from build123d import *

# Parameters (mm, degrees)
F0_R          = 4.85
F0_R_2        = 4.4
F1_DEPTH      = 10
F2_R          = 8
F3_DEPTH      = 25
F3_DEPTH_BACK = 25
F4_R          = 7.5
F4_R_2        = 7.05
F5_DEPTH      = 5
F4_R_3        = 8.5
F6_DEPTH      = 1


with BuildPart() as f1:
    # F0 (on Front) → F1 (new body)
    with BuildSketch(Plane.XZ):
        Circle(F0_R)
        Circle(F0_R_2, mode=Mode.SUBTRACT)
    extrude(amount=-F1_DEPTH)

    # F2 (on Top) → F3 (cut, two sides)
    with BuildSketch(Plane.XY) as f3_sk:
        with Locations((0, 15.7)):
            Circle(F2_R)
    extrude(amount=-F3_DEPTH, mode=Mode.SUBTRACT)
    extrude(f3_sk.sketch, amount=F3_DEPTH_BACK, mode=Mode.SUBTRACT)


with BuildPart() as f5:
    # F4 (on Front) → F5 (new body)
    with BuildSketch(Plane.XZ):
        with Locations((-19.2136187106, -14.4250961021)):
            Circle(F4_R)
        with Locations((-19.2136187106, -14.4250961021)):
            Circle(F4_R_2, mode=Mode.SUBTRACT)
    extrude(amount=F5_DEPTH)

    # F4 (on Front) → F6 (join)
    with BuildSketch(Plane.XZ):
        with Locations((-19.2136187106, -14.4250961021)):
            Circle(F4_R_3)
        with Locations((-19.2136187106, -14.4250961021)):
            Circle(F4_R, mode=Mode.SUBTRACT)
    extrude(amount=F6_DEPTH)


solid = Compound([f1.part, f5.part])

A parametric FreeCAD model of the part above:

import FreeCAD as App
import Part
import Sketcher

doc = App.newDocument("Part")
body = doc.addObject("PartDesign::Body", "Body")

sketch1 = body.newObject("Sketcher::SketchObject", "Sketch")
sketch1.AttachmentSupport = (doc.getObject("XZ_Plane"), [""])
sketch1.MapMode = "FlatFace"
sketch1.addGeometry(Part.Circle(App.Vector(0, 0, 0), App.Vector(0, 0, 1), 4.8), False)
sketch1.addGeometry(Part.Circle(App.Vector(0, 0, 0), App.Vector(0, 0, 1), 4.4), False)
sketch1.addConstraint(Sketcher.Constraint("Coincident", 0, 3, -1, 1))
sketch1.addConstraint(Sketcher.Constraint("Coincident", 1, 3, -1, 1))
sketch1.addConstraint(Sketcher.Constraint("Diameter", 0, 9.7))
sketch1.addConstraint(Sketcher.Constraint("Diameter", 1, 8.8))
pad1 = body.newObject("PartDesign::Pad", "Pad")
pad1.Profile = sketch1
pad1.Length = 10
pad1.Reversed = True

sketch2 = body.newObject("Sketcher::SketchObject", "Sketch001")
sketch2.AttachmentSupport = (doc.getObject("XY_Plane"), [""])
sketch2.MapMode = "FlatFace"
sketch2.addGeometry(Part.Circle(App.Vector(0, 16, 0), App.Vector(0, 0, 1), 8), False)
sketch2.addConstraint(Sketcher.Constraint("PointOnObject", 0, 3, -2))
sketch2.addConstraint(Sketcher.Constraint("Diameter", 0, 16.0))
sketch2.addConstraint(Sketcher.Constraint("DistanceY", -1, 1, 0, 3, 15.7))
pocket1 = body.newObject("PartDesign::Pocket", "Pocket")
pocket1.Profile = sketch2
pocket1.Type = "ThroughAll"
pocket1.Midplane = True
body2 = doc.addObject("PartDesign::Body", "Body001")

sketch3 = body2.newObject("Sketcher::SketchObject", "Sketch002")
sketch3.AttachmentSupport = (doc.getObject("XZ_Plane001"), [""])
sketch3.MapMode = "FlatFace"
sketch3.addGeometry(Part.Circle(App.Vector(-19, -14, 0), App.Vector(0, 0, 1), 8), False)
sketch3.addGeometry(Part.Circle(App.Vector(-19, -14, 0), App.Vector(0, 0, 1), 7), False)
sketch3.addConstraint(Sketcher.Constraint("Coincident", 1, 3, 0, 3))
sketch3.addConstraint(Sketcher.Constraint("Diameter", 0, 15.0))
sketch3.addConstraint(Sketcher.Constraint("Diameter", 1, 14.1))
sketch3.addConstraint(Sketcher.Constraint("DistanceX", 0, 3, -1, 1, 19.213619))
sketch3.addConstraint(Sketcher.Constraint("DistanceY", 0, 3, -1, 1, 14.425096))
pad2 = body2.newObject("PartDesign::Pad", "Pad001")
pad2.Profile = sketch3
pad2.Length = 5

sketch4 = body2.newObject("Sketcher::SketchObject", "Sketch003")
sketch4.AttachmentSupport = (doc.getObject("XZ_Plane001"), [""])
sketch4.MapMode = "FlatFace"
sketch4.addGeometry(Part.Circle(App.Vector(-19, -14, 0), App.Vector(0, 0, 1), 8), False)
sketch4.addGeometry(Part.Circle(App.Vector(-19, -14, 0), App.Vector(0, 0, 1), 8), False)
sketch4.addConstraint(Sketcher.Constraint("Coincident", 1, 3, 0, 3))
sketch4.addConstraint(Sketcher.Constraint("Diameter", 0, 17.0))
sketch4.addConstraint(Sketcher.Constraint("Diameter", 1, 15.0))
sketch4.addConstraint(Sketcher.Constraint("DistanceX", 0, 3, -1, 1, 19.213619))
sketch4.addConstraint(Sketcher.Constraint("DistanceY", 0, 3, -1, 1, 14.425096))
pad3 = body2.newObject("PartDesign::Pad", "Pad002")
pad3.Profile = sketch4
pad3.Length = 1

doc.recompute()
